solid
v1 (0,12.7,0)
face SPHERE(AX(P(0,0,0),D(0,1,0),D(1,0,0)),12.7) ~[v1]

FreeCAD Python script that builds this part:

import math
import FreeCAD as App
import Part
import Sketcher
from FreeCAD import Vector
Q = App.Units.Quantity

doc = App.newDocument("Part")
body = doc.addObject("PartDesign::Body", "Body")

# Sketch on XY plane
sketch1 = body.newObject("Sketcher::SketchObject", "Sketch")
sketch1.AttachmentSupport = (doc.getObject("XY_Plane"), [""])
sketch1.MapMode = "FlatFace"
sketch1.addGeometry([
    Part.LineSegment(Vector(0, 13, 0), Vector(0, -13, 0)),
    Part.ArcOfCircle(Part.Circle(Vector(0, 0, 0), Vector(0, 0, 1), 13), math.radians(-90), math.radians(90)),
], False)
sketch1.addConstraint([
    Sketcher.Constraint("Coincident", 0, 1, 1, 2),
    Sketcher.Constraint("Coincident", 1, 1, 0, 2),
    Sketcher.Constraint("Vertical", 0),
    Sketcher.Constraint("Coincident", 1, 3, -1, 1),
    Sketcher.Constraint("PointOnObject", 0, 1, -2),
    Sketcher.Constraint("Radius", 1, Q("0.5 in")),
])
revolution = body.newObject("PartDesign::Revolution", "Revolution")
revolution.Profile = sketch1
revolution.ReferenceAxis = (sketch1, ["V_Axis"])
revolution.Angle = 360

doc.recompute()
